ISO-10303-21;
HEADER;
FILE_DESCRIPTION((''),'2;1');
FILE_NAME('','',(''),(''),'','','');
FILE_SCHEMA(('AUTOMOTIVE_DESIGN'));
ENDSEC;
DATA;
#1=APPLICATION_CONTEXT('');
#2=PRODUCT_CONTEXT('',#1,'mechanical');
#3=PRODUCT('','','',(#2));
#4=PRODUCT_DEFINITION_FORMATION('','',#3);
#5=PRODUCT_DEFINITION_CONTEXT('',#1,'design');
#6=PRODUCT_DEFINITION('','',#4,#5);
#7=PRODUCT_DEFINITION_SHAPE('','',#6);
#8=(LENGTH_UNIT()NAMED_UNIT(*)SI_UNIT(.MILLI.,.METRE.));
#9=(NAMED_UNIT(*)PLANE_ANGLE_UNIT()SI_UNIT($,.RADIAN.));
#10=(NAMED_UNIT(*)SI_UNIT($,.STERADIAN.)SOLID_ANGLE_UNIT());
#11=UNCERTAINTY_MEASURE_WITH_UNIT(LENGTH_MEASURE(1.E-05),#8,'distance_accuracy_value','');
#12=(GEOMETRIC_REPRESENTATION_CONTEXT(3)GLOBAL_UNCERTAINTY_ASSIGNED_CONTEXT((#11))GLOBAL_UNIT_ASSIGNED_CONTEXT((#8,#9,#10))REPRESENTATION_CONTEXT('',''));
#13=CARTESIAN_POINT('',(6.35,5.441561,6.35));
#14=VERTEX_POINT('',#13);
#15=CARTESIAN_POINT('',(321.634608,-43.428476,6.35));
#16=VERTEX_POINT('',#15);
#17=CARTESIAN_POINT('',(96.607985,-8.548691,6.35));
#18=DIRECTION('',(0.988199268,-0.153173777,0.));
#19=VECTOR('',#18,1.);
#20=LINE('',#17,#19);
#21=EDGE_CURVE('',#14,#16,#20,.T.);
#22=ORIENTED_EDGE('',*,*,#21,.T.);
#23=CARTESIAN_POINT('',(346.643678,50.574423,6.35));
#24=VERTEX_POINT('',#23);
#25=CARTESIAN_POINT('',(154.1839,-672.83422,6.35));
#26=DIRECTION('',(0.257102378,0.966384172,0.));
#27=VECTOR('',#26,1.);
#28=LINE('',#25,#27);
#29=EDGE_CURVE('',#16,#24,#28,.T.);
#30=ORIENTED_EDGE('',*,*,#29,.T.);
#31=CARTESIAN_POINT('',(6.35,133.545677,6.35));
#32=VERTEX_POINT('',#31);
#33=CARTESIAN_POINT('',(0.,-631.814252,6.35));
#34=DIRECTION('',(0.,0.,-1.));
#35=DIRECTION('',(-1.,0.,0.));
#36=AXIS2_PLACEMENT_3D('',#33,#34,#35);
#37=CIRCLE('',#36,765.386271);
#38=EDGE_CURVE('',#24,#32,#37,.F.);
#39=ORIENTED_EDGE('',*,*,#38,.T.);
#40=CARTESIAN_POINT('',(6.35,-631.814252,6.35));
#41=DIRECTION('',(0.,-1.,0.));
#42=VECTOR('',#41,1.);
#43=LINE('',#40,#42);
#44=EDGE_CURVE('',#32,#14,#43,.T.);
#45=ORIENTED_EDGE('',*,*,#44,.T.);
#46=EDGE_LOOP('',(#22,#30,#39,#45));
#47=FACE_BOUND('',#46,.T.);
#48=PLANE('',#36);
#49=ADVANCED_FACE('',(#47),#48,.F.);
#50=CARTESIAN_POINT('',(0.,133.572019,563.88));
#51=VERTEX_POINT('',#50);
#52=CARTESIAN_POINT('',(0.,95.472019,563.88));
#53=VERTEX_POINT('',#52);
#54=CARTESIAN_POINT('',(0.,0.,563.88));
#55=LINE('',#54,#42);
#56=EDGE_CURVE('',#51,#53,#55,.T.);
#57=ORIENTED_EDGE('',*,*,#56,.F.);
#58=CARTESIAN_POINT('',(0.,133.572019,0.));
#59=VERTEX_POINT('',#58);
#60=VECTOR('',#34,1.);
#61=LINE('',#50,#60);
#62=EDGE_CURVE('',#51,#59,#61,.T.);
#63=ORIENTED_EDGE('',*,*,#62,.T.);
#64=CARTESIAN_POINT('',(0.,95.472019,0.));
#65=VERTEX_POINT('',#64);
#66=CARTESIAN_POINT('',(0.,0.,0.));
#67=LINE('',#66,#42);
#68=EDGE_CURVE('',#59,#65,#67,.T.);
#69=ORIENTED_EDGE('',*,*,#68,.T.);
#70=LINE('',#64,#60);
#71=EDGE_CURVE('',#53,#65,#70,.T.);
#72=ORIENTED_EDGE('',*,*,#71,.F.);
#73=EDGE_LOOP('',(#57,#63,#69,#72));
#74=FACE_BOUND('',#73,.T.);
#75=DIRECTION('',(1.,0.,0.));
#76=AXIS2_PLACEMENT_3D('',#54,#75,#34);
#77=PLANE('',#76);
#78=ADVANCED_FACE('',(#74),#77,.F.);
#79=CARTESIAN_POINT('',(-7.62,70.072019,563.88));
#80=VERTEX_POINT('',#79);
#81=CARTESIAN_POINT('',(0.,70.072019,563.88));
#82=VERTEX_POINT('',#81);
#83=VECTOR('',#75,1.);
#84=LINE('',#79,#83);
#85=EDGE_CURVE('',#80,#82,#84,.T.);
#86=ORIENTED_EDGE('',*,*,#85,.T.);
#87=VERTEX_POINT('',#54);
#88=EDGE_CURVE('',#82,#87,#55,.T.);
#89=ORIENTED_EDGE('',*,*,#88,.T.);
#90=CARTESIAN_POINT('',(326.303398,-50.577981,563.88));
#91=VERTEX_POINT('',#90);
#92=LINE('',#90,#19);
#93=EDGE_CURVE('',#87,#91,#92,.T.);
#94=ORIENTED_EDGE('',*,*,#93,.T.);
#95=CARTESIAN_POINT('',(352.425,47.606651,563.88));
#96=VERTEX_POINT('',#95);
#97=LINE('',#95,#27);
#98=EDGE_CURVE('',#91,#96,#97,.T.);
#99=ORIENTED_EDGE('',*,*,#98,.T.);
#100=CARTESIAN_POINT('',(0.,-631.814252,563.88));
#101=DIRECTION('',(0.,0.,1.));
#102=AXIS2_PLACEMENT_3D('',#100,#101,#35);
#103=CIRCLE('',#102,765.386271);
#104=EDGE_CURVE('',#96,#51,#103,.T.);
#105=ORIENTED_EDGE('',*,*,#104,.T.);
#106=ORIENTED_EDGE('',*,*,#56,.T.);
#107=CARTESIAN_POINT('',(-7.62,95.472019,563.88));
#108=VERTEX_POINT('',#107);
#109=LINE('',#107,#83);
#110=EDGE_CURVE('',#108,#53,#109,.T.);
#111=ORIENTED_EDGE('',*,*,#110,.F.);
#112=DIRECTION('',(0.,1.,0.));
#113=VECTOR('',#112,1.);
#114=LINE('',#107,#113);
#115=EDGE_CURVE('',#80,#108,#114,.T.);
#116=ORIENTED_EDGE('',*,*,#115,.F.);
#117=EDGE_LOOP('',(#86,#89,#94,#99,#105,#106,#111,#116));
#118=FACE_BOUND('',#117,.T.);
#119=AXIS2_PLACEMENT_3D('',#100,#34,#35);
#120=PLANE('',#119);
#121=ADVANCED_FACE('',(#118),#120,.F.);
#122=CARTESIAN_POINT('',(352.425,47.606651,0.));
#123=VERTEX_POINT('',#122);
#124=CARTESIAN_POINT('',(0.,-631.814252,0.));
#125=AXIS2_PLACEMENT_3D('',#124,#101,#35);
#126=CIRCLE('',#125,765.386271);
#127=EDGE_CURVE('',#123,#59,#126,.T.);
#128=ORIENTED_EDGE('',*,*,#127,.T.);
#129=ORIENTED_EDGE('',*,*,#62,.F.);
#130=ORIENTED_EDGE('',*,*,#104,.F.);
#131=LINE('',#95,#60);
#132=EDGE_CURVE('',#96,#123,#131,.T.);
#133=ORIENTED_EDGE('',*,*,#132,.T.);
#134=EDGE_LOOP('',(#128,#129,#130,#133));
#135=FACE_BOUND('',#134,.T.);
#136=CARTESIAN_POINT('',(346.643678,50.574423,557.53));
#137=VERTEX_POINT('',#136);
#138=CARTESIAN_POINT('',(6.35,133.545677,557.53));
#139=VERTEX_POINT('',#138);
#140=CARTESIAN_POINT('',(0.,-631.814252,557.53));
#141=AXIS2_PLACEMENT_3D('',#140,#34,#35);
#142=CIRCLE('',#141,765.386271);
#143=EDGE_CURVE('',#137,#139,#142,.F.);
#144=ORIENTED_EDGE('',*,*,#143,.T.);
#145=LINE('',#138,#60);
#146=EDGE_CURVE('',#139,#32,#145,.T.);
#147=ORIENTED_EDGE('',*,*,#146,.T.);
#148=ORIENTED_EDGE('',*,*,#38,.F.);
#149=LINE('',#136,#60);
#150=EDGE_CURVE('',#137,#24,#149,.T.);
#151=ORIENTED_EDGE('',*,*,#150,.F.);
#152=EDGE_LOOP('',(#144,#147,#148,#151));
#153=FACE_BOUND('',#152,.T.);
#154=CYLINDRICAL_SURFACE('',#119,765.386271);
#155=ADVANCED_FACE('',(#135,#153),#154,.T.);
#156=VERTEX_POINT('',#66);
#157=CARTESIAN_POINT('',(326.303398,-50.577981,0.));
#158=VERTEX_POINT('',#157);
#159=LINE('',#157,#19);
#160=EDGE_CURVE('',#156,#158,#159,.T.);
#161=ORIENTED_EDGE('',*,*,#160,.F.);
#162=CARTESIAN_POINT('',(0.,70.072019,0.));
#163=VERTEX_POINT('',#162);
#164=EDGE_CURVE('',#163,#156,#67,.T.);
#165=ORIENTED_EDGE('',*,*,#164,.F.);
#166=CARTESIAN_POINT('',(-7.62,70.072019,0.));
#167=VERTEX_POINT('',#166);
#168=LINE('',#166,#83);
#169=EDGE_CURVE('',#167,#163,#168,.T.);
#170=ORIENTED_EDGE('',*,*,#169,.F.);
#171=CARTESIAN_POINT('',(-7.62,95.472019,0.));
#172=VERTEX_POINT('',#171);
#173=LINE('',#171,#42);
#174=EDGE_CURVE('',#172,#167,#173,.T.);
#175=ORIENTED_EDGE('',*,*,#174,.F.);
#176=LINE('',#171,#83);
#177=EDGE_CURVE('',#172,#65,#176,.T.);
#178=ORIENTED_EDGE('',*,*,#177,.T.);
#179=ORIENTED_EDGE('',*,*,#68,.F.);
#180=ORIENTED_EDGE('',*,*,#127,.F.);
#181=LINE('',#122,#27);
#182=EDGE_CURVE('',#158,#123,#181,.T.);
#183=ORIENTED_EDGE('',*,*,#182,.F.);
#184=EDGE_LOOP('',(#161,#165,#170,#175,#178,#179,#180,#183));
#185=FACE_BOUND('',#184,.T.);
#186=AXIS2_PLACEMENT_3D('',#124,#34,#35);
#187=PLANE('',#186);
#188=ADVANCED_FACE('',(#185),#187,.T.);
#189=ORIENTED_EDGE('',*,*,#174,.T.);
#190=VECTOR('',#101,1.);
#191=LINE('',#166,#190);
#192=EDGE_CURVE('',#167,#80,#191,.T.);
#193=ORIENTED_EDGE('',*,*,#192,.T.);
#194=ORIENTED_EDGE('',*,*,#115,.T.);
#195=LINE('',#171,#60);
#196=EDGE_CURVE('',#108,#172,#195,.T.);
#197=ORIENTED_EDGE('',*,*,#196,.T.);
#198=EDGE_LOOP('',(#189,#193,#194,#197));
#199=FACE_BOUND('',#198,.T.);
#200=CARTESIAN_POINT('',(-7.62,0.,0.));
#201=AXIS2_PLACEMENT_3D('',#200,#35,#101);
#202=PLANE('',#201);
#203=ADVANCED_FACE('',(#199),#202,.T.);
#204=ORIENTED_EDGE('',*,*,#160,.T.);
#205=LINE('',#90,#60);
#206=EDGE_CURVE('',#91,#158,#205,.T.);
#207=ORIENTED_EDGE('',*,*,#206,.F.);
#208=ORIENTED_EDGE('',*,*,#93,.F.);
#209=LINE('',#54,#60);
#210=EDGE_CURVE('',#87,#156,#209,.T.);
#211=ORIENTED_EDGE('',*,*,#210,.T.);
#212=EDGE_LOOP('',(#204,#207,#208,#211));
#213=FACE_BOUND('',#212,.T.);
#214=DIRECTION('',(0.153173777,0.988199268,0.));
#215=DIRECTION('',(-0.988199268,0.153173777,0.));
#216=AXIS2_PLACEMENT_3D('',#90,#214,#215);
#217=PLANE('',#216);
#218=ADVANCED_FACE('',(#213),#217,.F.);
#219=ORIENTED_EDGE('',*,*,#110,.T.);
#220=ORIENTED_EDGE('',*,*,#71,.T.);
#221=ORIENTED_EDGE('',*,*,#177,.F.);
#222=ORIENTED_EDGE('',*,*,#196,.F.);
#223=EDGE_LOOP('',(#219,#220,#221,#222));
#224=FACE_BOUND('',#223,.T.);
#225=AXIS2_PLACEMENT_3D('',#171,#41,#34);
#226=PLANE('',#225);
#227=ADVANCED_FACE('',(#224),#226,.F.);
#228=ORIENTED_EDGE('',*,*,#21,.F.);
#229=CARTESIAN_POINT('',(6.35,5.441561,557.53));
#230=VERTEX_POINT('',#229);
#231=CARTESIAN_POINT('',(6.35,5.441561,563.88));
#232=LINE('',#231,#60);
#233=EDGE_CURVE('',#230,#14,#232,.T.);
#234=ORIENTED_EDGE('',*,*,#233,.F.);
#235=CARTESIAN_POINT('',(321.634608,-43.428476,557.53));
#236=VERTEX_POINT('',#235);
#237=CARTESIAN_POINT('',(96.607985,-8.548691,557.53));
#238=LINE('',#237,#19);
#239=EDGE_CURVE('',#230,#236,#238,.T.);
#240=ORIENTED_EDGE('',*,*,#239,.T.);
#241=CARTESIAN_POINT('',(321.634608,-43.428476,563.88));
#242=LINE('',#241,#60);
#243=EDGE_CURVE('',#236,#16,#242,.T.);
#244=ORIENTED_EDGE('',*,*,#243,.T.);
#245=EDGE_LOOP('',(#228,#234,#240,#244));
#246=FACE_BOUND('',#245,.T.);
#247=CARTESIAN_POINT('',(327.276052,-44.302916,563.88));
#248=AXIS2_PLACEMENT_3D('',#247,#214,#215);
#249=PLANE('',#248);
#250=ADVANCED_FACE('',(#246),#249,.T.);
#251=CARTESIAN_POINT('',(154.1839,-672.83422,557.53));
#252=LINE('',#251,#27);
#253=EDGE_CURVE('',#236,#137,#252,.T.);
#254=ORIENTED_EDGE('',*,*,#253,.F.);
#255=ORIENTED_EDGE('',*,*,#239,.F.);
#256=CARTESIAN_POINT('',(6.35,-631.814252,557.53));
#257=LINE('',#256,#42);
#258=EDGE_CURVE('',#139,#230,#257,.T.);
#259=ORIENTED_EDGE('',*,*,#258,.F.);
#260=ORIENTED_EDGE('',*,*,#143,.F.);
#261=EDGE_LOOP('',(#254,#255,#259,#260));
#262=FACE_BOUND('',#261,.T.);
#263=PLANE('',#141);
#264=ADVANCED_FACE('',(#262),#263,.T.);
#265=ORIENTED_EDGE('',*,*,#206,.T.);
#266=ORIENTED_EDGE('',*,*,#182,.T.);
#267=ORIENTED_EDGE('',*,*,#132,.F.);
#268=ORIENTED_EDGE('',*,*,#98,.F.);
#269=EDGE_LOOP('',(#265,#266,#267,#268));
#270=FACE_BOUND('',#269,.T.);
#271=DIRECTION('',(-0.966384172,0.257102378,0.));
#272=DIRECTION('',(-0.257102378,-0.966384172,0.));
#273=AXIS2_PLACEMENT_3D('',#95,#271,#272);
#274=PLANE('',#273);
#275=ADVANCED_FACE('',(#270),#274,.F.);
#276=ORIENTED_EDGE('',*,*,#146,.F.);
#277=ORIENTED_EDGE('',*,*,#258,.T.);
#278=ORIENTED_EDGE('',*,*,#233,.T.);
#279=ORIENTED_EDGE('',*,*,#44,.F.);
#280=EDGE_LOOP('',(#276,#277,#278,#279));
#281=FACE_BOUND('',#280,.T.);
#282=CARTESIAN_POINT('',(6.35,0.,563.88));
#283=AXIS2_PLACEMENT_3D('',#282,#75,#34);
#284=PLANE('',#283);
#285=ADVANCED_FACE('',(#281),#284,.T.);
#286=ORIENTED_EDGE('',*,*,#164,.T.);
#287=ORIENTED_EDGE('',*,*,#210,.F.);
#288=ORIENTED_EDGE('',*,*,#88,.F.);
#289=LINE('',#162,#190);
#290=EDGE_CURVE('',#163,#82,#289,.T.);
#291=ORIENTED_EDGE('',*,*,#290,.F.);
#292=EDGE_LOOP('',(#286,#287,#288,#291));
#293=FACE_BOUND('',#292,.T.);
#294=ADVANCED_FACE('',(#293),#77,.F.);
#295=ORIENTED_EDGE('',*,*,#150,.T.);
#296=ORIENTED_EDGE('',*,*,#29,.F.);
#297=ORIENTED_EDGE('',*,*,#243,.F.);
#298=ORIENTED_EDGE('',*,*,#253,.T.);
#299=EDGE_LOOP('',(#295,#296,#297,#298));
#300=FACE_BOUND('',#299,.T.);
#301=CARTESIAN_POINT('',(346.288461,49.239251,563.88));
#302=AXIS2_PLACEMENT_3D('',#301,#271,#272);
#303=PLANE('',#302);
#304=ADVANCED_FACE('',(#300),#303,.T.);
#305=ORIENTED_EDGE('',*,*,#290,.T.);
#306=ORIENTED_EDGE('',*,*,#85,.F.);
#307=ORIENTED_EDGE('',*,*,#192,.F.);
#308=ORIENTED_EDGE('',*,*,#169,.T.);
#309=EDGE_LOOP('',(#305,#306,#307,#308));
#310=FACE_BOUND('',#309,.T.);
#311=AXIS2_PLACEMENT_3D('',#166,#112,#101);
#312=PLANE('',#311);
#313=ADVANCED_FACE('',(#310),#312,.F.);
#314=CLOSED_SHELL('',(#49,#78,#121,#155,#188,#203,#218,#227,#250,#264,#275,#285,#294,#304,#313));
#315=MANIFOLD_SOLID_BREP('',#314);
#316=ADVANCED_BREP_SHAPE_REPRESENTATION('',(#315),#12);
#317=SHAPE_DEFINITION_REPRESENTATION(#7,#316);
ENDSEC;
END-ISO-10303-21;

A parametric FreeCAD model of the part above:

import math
import FreeCAD as App
import Part
import Sketcher
from FreeCAD import Vector
Q = App.Units.Quantity


def faces_at(feature, points):
    """Names of the faces that lie closest to the given points."""
    faces = feature.Shape.Faces
    near = lambda p: min(range(len(faces)), key=lambda i: faces[i].distToShape(Part.Vertex(*p))[0])
    return sorted({f"Face{near(p) + 1}" for p in points})


def add_polygon(sketch, points):
    """Adds a closed chain of lines whose ends are joined by coincident constraints."""
    first, n = sketch.GeometryCount, len(points)
    for a, b in zip(points, points[1:] + points[:1]):
        sketch.addGeometry(Part.LineSegment(App.Vector(*a, 0), App.Vector(*b, 0)), False)
    for i in range(n):
        sketch.addConstraint(Sketcher.Constraint("Coincident", first + i, 2, first + (i + 1) % n, 1))

doc = App.newDocument("Part")
body = doc.addObject("PartDesign::Body", "Body")

sketch1 = body.newObject("Sketcher::SketchObject", "Sketch")
sketch1.AttachmentSupport = (doc.getObject("XY_Plane"), [""])
sketch1.MapMode = "FlatFace"
sketch1.addGeometry([
    Part.LineSegment(Vector(0, 133.572019, 0), Vector(0, 0, 0)),
    Part.LineSegment(Vector(0, 0, 0), Vector(326.303398, -50.577981, 0)),
    Part.LineSegment(Vector(326.303398, -50.577981, 0), Vector(352.425, 47.606651, 0)),
    Part.ArcOfCircle(Part.Circle(Vector(0, -631.814252, 0), Vector(0, 0, 1), 765.386271), math.radians(62.583607), math.radians(90)),
], False)
sketch1.addConstraint([
    Sketcher.Constraint("Coincident", 0, 2, 1, 1),
    Sketcher.Constraint("Coincident", 1, 2, 2, 1),
    Sketcher.Constraint("Coincident", 2, 2, 3, 1),
    Sketcher.Constraint("Coincident", 3, 2, 0, 1),
    Sketcher.Constraint("Vertical", 0),
    Sketcher.Constraint("Coincident", 0, 2, -1, 1),
    Sketcher.Constraint("PointOnObject", 3, 3, -2),
    Sketcher.Constraint("Distance", 1, Q("13 in")),
    Sketcher.Constraint("Distance", 2, Q("4 in")),
    Sketcher.Constraint("DistanceY", 1, 2, 3, 2, Q("7.25 in")),
    Sketcher.Constraint("DistanceX", -1, 1, 2, 2, Q("13.875 in")),
    Sketcher.Constraint("Radius", 3, Q("765.386271 mm")),
])
pad1 = body.newObject("PartDesign::Pad", "Pad")
pad1.Profile = sketch1
pad1.Length = Q("22.2 in")
doc.recompute()

thickness = body.newObject("PartDesign::Thickness", "Thickness")
thickness.Base = (pad1, faces_at(pad1, [(181.379, 111.77, 281.94)]))
thickness.Value = Q("0.25 in")
thickness.Reversed = True
thickness.Join = "Intersection"

sketch2 = body.newObject("Sketcher::SketchObject", "Sketch001")
sketch2.AttachmentSupport = (doc.getObject("YZ_Plane"), [""])
sketch2.MapMode = "FlatFace"
add_polygon(sketch2, [(95.472019, 0), (70.072019, 0), (70.072019, 563.88), (95.472019, 563.88)])
sketch2.addConstraint([
    Sketcher.Constraint("Horizontal", 0),
    Sketcher.Constraint("Vertical", 1),
    Sketcher.Constraint("Horizontal", 2),
    Sketcher.Constraint("Vertical", 3),
    Sketcher.Constraint("PointOnObject", 0, 2, -1),
    Sketcher.Constraint("DistanceX", 0, 2, 0, 1, Q("1 in")),
    Sketcher.Constraint("DistanceY", 1, 1, 1, 2, Q("22.2 in")),
    Sketcher.Constraint("DistanceX", -1, 1, 0, 2, Q("70.072019 mm")),
])
pad2 = body.newObject("PartDesign::Pad", "Pad001")
pad2.Profile = sketch2
pad2.Length = Q("0.3 in")
pad2.Reversed = True

doc.recompute()
